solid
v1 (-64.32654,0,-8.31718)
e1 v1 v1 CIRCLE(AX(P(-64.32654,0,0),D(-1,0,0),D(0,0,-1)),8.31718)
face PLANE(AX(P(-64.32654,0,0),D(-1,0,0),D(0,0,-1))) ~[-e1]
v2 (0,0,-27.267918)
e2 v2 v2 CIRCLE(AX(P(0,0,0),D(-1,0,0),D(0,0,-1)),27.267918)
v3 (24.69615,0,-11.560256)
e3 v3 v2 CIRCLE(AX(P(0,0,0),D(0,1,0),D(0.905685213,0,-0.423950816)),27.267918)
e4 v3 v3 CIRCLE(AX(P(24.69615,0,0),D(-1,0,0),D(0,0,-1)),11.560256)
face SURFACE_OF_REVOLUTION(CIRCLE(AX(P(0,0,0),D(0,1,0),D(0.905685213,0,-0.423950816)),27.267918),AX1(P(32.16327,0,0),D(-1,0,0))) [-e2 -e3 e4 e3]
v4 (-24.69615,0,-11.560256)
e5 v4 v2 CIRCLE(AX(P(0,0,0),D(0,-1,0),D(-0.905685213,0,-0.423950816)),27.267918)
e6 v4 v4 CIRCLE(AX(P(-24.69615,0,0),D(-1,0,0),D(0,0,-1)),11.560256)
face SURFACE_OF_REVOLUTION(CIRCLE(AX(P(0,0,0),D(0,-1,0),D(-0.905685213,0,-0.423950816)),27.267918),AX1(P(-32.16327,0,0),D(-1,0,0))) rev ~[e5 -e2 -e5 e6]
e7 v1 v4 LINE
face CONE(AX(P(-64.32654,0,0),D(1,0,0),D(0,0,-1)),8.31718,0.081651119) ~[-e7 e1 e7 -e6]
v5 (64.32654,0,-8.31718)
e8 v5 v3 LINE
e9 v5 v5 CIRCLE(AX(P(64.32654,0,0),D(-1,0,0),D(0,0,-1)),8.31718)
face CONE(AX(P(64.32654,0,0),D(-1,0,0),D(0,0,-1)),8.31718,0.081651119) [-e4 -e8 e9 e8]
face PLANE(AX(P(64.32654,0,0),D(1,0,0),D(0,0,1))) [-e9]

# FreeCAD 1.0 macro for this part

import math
import FreeCAD as App
import Part
import Sketcher
Q = App.Units.Quantity

doc = App.newDocument("Part")
body = doc.addObject("PartDesign::Body", "Body")

sketch1 = doc.addObject("Sketcher::SketchObject", "Sketch")
body.addObject(sketch1)
sketch1.AttachmentSupport = (doc.XZ_Plane, [""])
sketch1.MapMode = "FlatFace"
sketch1.addGeometry(Part.LineSegment(App.Vector(-64.32654, -8.31718, 0), App.Vector(-24.69615, -11.560256, 0)), False)
sketch1.addGeometry(Part.ArcOfCircle(Part.Circle(App.Vector(0, 0, 0), App.Vector(0, 0, 1), 27.267918), math.radians(-154.915728), math.radians(-90.000001)), False)
sketch1.addGeometry(Part.LineSegment(App.Vector(0, -27.267918, 0), App.Vector(0, 0, 0)), False)
sketch1.addGeometry(Part.LineSegment(App.Vector(0, 0, 0), App.Vector(-64.32654, 0, 0)), False)
sketch1.addGeometry(Part.LineSegment(App.Vector(-64.32654, 0, 0), App.Vector(-64.32654, -8.31718, 0)), False)
sketch1.addConstraint(Sketcher.Constraint("Coincident", 0, 2, 1, 1))
sketch1.addConstraint(Sketcher.Constraint("Coincident", 1, 2, 2, 1))
sketch1.addConstraint(Sketcher.Constraint("Coincident", 2, 2, 3, 1))
sketch1.addConstraint(Sketcher.Constraint("Coincident", 3, 2, 4, 1))
sketch1.addConstraint(Sketcher.Constraint("Coincident", 4, 2, 0, 1))
sketch1.addConstraint(Sketcher.Constraint("Vertical", 2))
sketch1.addConstraint(Sketcher.Constraint("Horizontal", 3))
sketch1.addConstraint(Sketcher.Constraint("Vertical", 4))
sketch1.addConstraint(Sketcher.Constraint("Coincident", 1, 3, -1, 1))
sketch1.addConstraint(Sketcher.Constraint("Coincident", 2, 2, -1, 1))
sketch1.addConstraint(Sketcher.Constraint("Radius", 1, Q("27.267918 mm")))
sketch1.addConstraint(Sketcher.Constraint("DistanceX", 3, 2, 3, 1, Q("64.32654 mm")))
sketch1.addConstraint(Sketcher.Constraint("DistanceY", 4, 2, 4, 1, Q("8.31718 mm")))
sketch1.addConstraint(Sketcher.Constraint("DistanceX", 0, 2, -1, 1, Q("24.69615 mm")))
revolution = doc.addObject("PartDesign::Revolution", "Revolution")
body.addObject(revolution)
revolution.Profile = sketch1
revolution.ReferenceAxis = (sketch1, ["H_Axis"])
revolution.Angle = 360
body2 = doc.addObject("PartDesign::Body", "Body001")
doc.recompute()

body2.BaseFeature = body
doc.recompute()

mirroring = doc.addObject("Part::Mirroring", "Mirroring")
mirroring.Source = body
mirroring.Base = App.Vector(0, 0, 0)
mirroring.Normal = App.Vector(1, 0, 0)
body3 = doc.addObject("PartDesign::Body", "Body002")
body3.BaseFeature = mirroring
boolean = doc.addObject("PartDesign::Boolean", "Boolean")
body2.addObject(boolean)
boolean.Type = "Fuse"
boolean.addObjects([body3])
doc.recompute()
mirroring.Visibility = False

doc.recompute()
